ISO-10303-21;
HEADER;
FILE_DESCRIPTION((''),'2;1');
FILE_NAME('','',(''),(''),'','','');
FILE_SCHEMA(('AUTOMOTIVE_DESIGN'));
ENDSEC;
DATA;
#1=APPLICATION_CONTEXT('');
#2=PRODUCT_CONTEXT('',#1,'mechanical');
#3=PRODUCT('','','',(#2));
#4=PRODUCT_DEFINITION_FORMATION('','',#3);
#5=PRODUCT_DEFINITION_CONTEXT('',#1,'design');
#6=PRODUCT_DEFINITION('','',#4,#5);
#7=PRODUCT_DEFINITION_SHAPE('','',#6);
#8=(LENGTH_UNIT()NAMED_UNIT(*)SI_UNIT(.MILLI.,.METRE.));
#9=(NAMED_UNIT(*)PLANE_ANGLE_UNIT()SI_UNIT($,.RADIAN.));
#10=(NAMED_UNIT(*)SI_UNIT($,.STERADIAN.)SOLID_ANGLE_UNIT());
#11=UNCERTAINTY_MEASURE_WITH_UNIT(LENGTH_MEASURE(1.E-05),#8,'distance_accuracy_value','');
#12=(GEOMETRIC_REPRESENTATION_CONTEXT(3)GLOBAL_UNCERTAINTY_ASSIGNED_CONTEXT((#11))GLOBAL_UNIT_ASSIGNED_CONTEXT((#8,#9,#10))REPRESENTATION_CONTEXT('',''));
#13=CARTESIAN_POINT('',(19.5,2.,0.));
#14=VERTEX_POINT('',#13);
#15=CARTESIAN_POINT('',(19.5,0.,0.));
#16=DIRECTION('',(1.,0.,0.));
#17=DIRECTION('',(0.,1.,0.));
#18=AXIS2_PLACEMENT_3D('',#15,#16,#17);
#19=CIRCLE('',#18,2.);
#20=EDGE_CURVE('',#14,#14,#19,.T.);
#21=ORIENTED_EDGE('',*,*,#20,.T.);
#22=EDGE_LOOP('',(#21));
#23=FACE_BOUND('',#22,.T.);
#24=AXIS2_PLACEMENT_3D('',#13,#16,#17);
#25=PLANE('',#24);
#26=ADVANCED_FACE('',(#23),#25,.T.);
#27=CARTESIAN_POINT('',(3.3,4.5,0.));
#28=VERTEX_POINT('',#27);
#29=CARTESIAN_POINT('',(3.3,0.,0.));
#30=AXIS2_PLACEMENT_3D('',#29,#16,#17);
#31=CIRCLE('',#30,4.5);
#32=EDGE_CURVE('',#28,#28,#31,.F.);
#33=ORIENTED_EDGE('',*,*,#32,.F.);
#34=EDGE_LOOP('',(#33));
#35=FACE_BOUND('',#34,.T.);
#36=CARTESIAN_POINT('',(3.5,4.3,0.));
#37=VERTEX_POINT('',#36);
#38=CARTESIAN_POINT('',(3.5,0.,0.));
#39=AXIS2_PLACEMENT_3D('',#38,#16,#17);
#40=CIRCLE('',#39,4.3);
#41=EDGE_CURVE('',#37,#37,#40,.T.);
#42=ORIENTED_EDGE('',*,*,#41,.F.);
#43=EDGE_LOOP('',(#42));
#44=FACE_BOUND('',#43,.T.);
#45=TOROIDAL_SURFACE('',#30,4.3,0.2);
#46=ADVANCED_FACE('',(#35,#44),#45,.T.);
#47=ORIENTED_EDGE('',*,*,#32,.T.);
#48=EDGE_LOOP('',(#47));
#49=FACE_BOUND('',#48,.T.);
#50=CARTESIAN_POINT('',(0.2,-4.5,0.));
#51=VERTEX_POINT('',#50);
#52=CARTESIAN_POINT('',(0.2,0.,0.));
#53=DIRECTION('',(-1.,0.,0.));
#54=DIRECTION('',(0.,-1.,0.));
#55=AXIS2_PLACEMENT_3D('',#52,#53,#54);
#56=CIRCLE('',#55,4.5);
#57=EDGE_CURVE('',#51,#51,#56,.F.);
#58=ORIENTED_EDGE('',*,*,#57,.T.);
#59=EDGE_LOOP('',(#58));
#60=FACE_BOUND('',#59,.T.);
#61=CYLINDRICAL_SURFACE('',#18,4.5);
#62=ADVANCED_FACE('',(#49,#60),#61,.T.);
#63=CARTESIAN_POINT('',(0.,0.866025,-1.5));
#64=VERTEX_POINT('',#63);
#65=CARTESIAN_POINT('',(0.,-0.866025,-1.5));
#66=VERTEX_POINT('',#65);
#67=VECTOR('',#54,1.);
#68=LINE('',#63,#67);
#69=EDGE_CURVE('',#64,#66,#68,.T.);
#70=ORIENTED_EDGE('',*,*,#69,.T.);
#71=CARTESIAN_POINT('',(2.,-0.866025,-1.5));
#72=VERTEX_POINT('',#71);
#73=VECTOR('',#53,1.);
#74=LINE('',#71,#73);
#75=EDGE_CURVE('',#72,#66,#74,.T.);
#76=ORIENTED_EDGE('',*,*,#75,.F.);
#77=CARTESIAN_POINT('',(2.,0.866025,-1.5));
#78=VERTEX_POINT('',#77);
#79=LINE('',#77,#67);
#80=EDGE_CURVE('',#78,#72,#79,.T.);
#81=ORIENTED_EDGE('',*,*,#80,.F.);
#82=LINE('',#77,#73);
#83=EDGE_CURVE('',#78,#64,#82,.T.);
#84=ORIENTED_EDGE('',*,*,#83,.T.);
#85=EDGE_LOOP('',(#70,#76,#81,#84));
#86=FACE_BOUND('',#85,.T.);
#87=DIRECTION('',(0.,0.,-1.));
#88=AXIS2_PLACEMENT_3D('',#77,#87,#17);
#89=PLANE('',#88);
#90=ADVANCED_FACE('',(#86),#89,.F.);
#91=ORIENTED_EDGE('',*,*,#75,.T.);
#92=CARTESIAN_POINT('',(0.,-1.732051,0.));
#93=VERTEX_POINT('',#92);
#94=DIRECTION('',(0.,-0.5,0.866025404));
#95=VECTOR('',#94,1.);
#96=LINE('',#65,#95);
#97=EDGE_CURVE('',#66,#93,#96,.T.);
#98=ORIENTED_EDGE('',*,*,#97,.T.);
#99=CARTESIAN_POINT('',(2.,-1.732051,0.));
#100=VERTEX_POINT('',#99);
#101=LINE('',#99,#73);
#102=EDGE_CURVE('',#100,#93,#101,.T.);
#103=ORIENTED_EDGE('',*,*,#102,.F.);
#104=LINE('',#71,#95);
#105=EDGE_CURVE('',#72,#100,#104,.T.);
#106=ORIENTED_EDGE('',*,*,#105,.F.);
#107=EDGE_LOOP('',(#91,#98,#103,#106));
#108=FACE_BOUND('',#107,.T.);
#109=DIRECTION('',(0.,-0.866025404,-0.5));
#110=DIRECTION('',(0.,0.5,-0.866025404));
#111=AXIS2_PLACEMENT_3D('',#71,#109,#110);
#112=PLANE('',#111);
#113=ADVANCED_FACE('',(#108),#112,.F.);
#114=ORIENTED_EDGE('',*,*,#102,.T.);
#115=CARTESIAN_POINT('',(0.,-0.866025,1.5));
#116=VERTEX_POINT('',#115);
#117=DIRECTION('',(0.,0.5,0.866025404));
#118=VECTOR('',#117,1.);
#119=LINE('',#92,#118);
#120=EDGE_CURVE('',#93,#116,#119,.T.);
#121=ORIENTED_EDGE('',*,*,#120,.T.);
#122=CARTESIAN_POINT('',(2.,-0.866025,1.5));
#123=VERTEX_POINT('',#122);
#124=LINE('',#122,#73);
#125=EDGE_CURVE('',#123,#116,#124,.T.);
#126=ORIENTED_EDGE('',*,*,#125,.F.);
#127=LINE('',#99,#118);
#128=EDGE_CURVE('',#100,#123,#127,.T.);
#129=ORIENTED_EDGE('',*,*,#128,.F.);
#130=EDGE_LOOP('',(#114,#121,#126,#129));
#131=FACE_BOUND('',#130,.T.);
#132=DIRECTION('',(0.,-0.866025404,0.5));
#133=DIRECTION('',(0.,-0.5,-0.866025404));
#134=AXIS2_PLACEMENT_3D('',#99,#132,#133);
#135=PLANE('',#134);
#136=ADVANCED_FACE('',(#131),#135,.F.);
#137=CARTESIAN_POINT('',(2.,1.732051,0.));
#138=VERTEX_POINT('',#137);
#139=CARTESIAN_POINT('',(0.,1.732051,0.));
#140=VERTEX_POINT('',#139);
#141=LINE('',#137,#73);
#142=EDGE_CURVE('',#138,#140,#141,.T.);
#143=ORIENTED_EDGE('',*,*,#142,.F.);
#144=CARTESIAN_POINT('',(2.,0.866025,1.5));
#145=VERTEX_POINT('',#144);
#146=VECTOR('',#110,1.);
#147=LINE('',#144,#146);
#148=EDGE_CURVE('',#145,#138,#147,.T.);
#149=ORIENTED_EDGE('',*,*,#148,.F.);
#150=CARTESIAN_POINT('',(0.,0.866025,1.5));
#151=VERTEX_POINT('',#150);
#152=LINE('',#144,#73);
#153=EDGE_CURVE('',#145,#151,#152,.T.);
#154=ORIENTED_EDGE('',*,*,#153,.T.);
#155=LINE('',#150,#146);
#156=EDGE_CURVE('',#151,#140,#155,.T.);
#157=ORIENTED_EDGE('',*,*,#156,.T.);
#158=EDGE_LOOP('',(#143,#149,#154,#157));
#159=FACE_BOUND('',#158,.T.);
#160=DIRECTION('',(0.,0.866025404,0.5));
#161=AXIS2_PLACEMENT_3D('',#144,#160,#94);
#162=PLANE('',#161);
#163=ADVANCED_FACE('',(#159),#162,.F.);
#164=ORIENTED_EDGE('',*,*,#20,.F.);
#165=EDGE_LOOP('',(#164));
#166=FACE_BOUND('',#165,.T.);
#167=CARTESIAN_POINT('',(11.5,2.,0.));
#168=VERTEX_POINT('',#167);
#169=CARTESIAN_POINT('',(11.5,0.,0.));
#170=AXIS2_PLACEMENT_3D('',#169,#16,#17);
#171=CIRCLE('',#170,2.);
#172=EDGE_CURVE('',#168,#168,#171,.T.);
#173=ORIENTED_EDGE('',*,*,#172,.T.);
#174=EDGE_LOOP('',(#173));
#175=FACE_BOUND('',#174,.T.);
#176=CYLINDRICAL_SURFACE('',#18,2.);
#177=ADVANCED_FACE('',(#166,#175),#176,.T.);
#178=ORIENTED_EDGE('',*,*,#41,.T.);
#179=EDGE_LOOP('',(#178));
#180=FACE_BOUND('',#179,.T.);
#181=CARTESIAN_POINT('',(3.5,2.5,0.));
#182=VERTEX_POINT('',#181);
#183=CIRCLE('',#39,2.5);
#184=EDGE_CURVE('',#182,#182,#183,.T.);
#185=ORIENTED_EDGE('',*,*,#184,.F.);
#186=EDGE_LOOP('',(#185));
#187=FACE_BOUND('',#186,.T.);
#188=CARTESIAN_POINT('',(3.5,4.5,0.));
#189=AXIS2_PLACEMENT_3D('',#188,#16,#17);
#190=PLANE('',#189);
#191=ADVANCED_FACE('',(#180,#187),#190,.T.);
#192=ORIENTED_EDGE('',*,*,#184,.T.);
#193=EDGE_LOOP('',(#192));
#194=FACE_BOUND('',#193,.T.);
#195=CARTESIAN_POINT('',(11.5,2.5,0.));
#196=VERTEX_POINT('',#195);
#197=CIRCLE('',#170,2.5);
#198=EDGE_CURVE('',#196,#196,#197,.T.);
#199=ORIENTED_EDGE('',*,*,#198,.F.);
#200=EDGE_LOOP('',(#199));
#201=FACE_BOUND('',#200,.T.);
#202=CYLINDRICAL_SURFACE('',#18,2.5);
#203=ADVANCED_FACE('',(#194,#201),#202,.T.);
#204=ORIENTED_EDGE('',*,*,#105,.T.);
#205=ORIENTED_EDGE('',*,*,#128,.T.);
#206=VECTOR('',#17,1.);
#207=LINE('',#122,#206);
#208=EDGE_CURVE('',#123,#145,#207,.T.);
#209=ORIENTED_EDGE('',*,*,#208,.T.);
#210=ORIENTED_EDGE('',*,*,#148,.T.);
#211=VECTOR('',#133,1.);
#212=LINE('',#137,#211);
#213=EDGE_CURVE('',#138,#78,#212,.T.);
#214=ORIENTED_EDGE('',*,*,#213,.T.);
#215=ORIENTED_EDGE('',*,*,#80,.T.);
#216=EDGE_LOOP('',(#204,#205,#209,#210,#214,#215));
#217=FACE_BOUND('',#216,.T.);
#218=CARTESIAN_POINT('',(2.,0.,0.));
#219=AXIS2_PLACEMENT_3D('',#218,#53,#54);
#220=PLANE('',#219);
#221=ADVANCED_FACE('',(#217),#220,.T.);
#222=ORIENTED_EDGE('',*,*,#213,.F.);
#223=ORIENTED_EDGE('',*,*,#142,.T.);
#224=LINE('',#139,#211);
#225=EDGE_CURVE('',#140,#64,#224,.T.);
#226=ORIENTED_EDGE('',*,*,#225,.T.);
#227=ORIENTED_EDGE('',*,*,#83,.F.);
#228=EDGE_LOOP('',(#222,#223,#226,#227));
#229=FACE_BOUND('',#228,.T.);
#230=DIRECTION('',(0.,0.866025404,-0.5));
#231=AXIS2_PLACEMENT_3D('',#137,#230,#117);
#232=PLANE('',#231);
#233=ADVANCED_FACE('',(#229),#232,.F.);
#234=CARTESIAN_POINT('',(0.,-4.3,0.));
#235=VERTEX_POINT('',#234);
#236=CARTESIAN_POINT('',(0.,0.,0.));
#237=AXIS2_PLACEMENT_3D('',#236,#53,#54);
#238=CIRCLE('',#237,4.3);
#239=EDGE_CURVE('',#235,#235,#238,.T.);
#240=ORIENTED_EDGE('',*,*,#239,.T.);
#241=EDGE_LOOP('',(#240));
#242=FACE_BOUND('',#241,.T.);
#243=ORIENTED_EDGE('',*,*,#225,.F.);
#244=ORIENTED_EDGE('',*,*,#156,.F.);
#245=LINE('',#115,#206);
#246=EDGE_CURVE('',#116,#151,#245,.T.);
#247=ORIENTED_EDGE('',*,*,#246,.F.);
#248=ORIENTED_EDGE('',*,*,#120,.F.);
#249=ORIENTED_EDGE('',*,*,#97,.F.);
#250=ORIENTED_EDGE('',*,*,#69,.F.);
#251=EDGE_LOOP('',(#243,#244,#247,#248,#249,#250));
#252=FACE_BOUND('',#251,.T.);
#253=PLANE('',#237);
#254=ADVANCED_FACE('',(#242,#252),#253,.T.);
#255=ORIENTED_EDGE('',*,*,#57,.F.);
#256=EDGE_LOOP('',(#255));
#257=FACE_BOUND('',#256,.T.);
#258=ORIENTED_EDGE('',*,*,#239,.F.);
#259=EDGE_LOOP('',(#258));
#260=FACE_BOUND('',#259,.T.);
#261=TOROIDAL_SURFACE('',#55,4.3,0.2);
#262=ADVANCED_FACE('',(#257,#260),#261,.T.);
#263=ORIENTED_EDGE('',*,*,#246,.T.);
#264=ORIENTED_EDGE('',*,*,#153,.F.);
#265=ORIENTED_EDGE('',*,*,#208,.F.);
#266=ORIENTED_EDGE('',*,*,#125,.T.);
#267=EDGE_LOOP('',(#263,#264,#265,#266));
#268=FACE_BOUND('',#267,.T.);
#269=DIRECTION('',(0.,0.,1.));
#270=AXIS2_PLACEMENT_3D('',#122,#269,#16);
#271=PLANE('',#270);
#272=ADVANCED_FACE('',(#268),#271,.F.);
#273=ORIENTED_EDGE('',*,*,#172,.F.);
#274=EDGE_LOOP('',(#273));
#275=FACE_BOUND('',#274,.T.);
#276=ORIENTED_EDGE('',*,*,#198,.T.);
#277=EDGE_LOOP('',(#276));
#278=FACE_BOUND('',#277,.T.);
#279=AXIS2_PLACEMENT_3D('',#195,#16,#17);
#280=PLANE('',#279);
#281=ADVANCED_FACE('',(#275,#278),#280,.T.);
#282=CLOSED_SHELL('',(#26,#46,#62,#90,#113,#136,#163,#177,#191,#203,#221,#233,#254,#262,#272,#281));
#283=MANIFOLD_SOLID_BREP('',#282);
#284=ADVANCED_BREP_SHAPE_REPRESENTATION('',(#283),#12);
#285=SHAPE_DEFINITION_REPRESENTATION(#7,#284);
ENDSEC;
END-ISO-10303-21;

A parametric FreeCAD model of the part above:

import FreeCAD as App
import Part
import Sketcher
from FreeCAD import Vector
Q = App.Units.Quantity


def edges_at(feature, points):
    """Names of the edges that pass closest to the given points."""
    edges = feature.Shape.Edges
    near = lambda p: min(range(len(edges)), key=lambda i: edges[i].distToShape(Part.Vertex(*p))[0])
    return sorted({f"Edge{near(p) + 1}" for p in points})

doc = App.newDocument("Part")
params = doc.addObject("Spreadsheet::Sheet", "Params")
for row, (alias, value) in enumerate([
    ("sketch1_width", "8 mm"),
    ("sketch1_height", "2 mm"),
    ("sketch1_width2", "19.5 mm"),
    ("sketch1_height2", "4.5 mm"),
    ("revolution_angle", "360 deg"),
    ("pocket1_length", "2 mm"),
    ("fillet_radius", "0.2 mm"),
], start=1):
    params.set(f"A{row}", alias)
    params.set(f"B{row}", "=" + value)
    params.setAlias(f"B{row}", alias)

body = doc.addObject("PartDesign::Body", "Body")

sketch1 = body.newObject("Sketcher::SketchObject", "Sketch")
sketch1.AttachmentSupport = (doc.getObject("XY_Plane"), [""])
sketch1.MapMode = "FlatFace"
sketch1.addGeometry([
    Part.LineSegment(Vector(0, 4.5, 0), Vector(0, 0, 0)),
    Part.LineSegment(Vector(0, 0, 0), Vector(19.5, 0, 0)),
    Part.LineSegment(Vector(19.5, 0, 0), Vector(19.5, 2, 0)),
    Part.LineSegment(Vector(19.5, 2, 0), Vector(11.5, 2, 0)),
    Part.LineSegment(Vector(11.5, 2, 0), Vector(11.5, 2.5, 0)),
    Part.LineSegment(Vector(11.5, 2.5, 0), Vector(3.5, 2.5, 0)),
    Part.LineSegment(Vector(3.5, 2.5, 0), Vector(3.5, 4.5, 0)),
    Part.LineSegment(Vector(3.5, 4.5, 0), Vector(0, 4.5, 0)),
], False)
sketch1.addConstraint([
    Sketcher.Constraint("Coincident", 0, 2, 1, 1),
    Sketcher.Constraint("Coincident", 1, 2, 2, 1),
    Sketcher.Constraint("Coincident", 2, 2, 3, 1),
    Sketcher.Constraint("Coincident", 3, 2, 4, 1),
    Sketcher.Constraint("Coincident", 4, 2, 5, 1),
    Sketcher.Constraint("Coincident", 5, 2, 6, 1),
    Sketcher.Constraint("Coincident", 6, 2, 7, 1),
    Sketcher.Constraint("Coincident", 7, 2, 0, 1),
    Sketcher.Constraint("Vertical", 0),
    Sketcher.Constraint("Horizontal", 1),
    Sketcher.Constraint("Vertical", 2),
    Sketcher.Constraint("Horizontal", 3),
    Sketcher.Constraint("Vertical", 4),
    Sketcher.Constraint("Horizontal", 5),
    Sketcher.Constraint("Vertical", 6),
    Sketcher.Constraint("Horizontal", 7),
    Sketcher.Constraint("Coincident", 0, 2, -1, 1),
    Sketcher.Constraint("Equal", 3, 5),
    Sketcher.Constraint("Equal", 2, 6),
    Sketcher.Constraint("DistanceX", 3, 2, 3, 1, Q("8 mm")),
    Sketcher.Constraint("DistanceY", 2, 1, 2, 2, Q("2 mm")),
    Sketcher.Constraint("DistanceX", 1, 1, 1, 2, Q("19.5 mm")),
    Sketcher.Constraint("DistanceY", 0, 2, 0, 1, Q("4.5 mm")),
])
sketch1.setExpression("Constraints[19]", "Params.sketch1_width")
sketch1.setExpression("Constraints[20]", "Params.sketch1_height")
sketch1.setExpression("Constraints[21]", "Params.sketch1_width2")
sketch1.setExpression("Constraints[22]", "Params.sketch1_height2")
revolution = body.newObject("PartDesign::Revolution", "Revolution")
revolution.Profile = sketch1
revolution.ReferenceAxis = (sketch1, ["H_Axis"])
revolution.setExpression("Angle", "Params.revolution_angle")

sketch2 = body.newObject("Sketcher::SketchObject", "Sketch001")
sketch2.AttachmentSupport = (doc.getObject("YZ_Plane"), [""])
sketch2.MapMode = "FlatFace"
sketch2.addGeometry([
    Part.LineSegment(Vector(0.866025, 1.5, 0), Vector(1.732051, 0, 0)),
    Part.LineSegment(Vector(1.732051, 0, 0), Vector(0.866025, -1.5, 0)),
    Part.LineSegment(Vector(0.866025, -1.5, 0), Vector(-0.866025, -1.5, 0)),
    Part.LineSegment(Vector(-0.866025, -1.5, 0), Vector(-1.732051, 0, 0)),
    Part.LineSegment(Vector(-1.732051, 0, 0), Vector(-0.866025, 1.5, 0)),
    Part.LineSegment(Vector(-0.866025, 1.5, 0), Vector(0.866025, 1.5, 0)),
], False)
sketch2.addConstraint([
    Sketcher.Constraint("Coincident", 0, 2, 1, 1),
    Sketcher.Constraint("Coincident", 1, 2, 2, 1),
    Sketcher.Constraint("Coincident", 2, 2, 3, 1),
    Sketcher.Constraint("Coincident", 3, 2, 4, 1),
    Sketcher.Constraint("Coincident", 4, 2, 5, 1),
    Sketcher.Constraint("Coincident", 5, 2, 0, 1),
    Sketcher.Constraint("Horizontal", 2),
    Sketcher.Constraint("Horizontal", 5),
    Sketcher.Constraint("Symmetric", 0, 2, 3, 2, -1, 1),
    Sketcher.Constraint("Symmetric", 1, 2, 4, 2, -1, 1),
    Sketcher.Constraint("PointOnObject", 0, 2, -1),
    Sketcher.Constraint("Parallel", 0, 3),
    Sketcher.Constraint("Vertical", 2, 2, 4, 2),
    Sketcher.Constraint("Angle", 0, Q("-60 deg")),
    Sketcher.Constraint("DistanceY", 2, 2, 4, 2, Q("3 mm")),
    Sketcher.Constraint("DistanceX", 2, 2, 2, 1, Q("1.732051 mm")),
])
pocket1 = body.newObject("PartDesign::Pocket", "Pocket")
pocket1.Profile = sketch2
pocket1.setExpression("Length", "Params.pocket1_length")
pocket1.Reversed = True
doc.recompute()

fillet = body.newObject("PartDesign::Fillet", "Fillet")
fillet.Base = (pocket1, edges_at(pocket1, [(3.5, -4.5, 0), (0, -4.5, 0)]))
fillet.setExpression("Radius", "Params.fillet_radius")

doc.recompute()
